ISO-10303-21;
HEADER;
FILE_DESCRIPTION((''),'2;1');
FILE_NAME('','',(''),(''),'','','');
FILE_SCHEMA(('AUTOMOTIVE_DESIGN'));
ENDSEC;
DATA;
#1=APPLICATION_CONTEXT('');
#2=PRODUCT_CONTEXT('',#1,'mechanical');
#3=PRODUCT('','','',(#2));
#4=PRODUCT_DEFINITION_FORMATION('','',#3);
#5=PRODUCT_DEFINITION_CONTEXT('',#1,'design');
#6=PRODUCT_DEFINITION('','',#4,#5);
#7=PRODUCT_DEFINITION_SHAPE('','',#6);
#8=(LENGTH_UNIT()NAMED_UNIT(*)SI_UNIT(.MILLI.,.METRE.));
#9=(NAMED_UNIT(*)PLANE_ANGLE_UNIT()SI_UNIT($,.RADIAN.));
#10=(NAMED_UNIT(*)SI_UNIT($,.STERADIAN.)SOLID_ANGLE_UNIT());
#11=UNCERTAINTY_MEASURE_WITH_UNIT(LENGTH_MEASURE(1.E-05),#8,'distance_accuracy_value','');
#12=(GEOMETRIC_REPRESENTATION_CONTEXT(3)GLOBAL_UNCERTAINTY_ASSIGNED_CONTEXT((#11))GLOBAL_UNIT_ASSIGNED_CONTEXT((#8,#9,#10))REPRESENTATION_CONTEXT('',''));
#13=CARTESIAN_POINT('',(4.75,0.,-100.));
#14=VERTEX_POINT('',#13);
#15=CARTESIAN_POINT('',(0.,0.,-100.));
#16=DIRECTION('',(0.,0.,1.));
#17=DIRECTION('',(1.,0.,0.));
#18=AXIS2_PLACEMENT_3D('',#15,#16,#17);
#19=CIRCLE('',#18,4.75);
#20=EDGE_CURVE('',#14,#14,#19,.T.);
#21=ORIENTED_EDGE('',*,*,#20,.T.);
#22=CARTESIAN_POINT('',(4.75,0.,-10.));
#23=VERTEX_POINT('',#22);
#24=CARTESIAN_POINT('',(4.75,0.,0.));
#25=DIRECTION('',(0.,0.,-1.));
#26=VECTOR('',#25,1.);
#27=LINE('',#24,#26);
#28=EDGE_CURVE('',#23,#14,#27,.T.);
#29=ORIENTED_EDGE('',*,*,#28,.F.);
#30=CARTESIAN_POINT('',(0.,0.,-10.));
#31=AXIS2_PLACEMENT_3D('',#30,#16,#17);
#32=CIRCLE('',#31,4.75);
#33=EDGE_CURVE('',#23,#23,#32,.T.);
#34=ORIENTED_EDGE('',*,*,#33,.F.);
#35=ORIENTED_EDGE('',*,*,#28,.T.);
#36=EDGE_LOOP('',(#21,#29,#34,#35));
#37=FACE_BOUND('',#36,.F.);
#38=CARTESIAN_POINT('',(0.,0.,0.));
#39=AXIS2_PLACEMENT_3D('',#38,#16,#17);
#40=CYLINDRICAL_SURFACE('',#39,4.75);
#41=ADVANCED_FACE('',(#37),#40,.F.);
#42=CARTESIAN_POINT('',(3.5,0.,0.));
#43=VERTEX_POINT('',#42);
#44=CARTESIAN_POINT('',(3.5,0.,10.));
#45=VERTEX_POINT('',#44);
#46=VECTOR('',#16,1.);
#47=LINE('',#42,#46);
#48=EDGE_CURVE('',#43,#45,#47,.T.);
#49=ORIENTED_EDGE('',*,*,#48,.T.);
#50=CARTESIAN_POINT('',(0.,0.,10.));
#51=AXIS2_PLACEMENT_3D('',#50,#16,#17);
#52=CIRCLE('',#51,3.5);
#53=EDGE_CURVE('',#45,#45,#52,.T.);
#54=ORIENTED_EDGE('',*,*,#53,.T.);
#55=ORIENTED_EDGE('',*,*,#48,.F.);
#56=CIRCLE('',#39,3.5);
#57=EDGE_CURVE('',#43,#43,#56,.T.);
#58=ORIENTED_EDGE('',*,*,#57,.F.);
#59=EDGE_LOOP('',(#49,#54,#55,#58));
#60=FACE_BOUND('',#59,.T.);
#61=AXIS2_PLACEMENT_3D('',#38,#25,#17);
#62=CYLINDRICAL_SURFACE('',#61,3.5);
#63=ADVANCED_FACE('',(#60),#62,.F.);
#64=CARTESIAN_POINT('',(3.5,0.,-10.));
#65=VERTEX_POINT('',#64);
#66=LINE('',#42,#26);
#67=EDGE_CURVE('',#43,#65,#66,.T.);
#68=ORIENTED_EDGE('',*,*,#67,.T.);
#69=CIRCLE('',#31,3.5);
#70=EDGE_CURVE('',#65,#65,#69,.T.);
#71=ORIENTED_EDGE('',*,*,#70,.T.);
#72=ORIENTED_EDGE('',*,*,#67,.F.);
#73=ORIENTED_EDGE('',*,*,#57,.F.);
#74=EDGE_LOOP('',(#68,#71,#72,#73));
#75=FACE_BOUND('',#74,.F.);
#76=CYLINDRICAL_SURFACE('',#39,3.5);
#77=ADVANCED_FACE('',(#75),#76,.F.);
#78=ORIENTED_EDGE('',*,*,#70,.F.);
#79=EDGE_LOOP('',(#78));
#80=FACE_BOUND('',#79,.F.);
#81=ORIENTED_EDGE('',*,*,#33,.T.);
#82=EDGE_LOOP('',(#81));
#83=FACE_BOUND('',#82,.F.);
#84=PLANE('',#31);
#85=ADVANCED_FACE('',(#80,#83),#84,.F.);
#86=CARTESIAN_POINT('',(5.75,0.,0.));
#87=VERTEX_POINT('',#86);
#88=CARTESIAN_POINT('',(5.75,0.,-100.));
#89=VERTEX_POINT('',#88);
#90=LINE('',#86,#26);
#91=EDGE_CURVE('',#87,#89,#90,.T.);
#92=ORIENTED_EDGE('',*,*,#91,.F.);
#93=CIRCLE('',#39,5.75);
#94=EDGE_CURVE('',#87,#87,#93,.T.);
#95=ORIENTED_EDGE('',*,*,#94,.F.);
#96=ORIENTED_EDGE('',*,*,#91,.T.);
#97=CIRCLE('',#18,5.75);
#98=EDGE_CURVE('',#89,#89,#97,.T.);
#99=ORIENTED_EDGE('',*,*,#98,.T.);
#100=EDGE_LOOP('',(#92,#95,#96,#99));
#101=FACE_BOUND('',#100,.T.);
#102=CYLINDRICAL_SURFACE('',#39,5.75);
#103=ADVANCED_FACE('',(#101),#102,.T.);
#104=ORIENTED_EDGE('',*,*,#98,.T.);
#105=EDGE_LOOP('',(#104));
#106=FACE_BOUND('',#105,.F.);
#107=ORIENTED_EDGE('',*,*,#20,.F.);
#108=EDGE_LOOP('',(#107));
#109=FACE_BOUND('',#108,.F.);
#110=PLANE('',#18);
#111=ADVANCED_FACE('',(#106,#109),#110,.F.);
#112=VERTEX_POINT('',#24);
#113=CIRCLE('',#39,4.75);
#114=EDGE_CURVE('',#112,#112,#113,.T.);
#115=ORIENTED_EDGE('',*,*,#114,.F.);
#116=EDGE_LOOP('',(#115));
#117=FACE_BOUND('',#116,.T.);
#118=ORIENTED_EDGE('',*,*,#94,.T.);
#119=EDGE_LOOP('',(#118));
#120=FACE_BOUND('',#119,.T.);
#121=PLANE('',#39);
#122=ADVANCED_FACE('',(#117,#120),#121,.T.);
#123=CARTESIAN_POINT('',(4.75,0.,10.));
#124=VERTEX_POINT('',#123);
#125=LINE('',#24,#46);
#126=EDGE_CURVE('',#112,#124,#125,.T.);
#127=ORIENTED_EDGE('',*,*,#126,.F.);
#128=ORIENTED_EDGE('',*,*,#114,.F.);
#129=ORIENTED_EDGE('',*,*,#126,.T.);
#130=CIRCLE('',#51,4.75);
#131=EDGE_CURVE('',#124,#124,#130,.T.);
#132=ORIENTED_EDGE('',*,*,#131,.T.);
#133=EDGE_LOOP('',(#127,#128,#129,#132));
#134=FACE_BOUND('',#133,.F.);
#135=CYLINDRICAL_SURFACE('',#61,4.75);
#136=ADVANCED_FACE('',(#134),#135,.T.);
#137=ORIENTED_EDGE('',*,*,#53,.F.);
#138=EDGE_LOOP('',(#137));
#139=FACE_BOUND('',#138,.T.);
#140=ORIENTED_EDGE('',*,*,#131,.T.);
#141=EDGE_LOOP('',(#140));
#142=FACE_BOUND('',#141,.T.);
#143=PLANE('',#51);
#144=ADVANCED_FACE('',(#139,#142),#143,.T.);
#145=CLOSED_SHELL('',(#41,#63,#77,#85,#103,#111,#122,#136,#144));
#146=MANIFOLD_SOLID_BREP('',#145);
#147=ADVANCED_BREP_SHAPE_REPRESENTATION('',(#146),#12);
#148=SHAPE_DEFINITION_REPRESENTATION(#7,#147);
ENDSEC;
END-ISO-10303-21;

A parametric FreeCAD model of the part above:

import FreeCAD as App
import Part
import Sketcher

doc = App.newDocument("Part")
params = doc.addObject("Spreadsheet::Sheet", "Params")
for row, (alias, value) in enumerate([
    ("sketch1_diameter", "11.5 mm"),
    ("sketch1_diameter2", "9.5 mm"),
    ("pad1_length", "100 mm"),
    ("sketch2_diameter", "7 mm"),
    ("sketch2_diameter2", "9.5 mm"),
    ("pad2_length", "10 mm"),
    ("pad2_length2", "10 mm"),
], start=1):
    params.set(f"A{row}", alias)
    params.set(f"B{row}", "=" + value)
    params.setAlias(f"B{row}", alias)

body = doc.addObject("PartDesign::Body", "Body")

# Sketch on XY plane
sketch1 = body.newObject("Sketcher::SketchObject", "Sketch")
sketch1.AttachmentSupport = (doc.getObject("XY_Plane"), [""])
sketch1.MapMode = "FlatFace"
sketch1.addGeometry([
    Part.Circle(App.Vector(0, 0, 0), App.Vector(0, 0, 1), 5.8),
    Part.Circle(App.Vector(0, 0, 0), App.Vector(0, 0, 1), 4.8),
], False)
sketch1.addConstraint([
    Sketcher.Constraint("Coincident", 0, 3, -1, 1),
    Sketcher.Constraint("Coincident", 1, 3, -1, 1),
    Sketcher.Constraint("Diameter", 0, 11.5),
    Sketcher.Constraint("Diameter", 1, 9.5),
])
sketch1.setExpression("Constraints[2]", "Params.sketch1_diameter")
sketch1.setExpression("Constraints[3]", "Params.sketch1_diameter2")
pad1 = body.newObject("PartDesign::Pad", "Pad")
pad1.Profile = sketch1
pad1.setExpression("Length", "Params.pad1_length")
pad1.Reversed = True

# Sketch on XY plane
sketch2 = body.newObject("Sketcher::SketchObject", "Sketch001")
sketch2.AttachmentSupport = (doc.getObject("XY_Plane"), [""])
sketch2.MapMode = "FlatFace"
sketch2.addGeometry([
    Part.Circle(App.Vector(0, 0, 0), App.Vector(0, 0, 1), 4.8),
    Part.Circle(App.Vector(0, 0, 0), App.Vector(0, 0, 1), 3.5),
], False)
sketch2.addConstraint([
    Sketcher.Constraint("Coincident", 0, 3, -1, 1),
    Sketcher.Constraint("Coincident", 1, 3, -1, 1),
    Sketcher.Constraint("Diameter", 1, 7.0),
    Sketcher.Constraint("Diameter", 0, 9.5),
])
sketch2.setExpression("Constraints[2]", "Params.sketch2_diameter")
sketch2.setExpression("Constraints[3]", "Params.sketch2_diameter2")
pad2 = body.newObject("PartDesign::Pad", "Pad001")
pad2.Profile = sketch2
pad2.Type = "TwoLengths"
pad2.setExpression("Length", "Params.pad2_length")
pad2.setExpression("Length2", "Params.pad2_length2")

doc.recompute()
